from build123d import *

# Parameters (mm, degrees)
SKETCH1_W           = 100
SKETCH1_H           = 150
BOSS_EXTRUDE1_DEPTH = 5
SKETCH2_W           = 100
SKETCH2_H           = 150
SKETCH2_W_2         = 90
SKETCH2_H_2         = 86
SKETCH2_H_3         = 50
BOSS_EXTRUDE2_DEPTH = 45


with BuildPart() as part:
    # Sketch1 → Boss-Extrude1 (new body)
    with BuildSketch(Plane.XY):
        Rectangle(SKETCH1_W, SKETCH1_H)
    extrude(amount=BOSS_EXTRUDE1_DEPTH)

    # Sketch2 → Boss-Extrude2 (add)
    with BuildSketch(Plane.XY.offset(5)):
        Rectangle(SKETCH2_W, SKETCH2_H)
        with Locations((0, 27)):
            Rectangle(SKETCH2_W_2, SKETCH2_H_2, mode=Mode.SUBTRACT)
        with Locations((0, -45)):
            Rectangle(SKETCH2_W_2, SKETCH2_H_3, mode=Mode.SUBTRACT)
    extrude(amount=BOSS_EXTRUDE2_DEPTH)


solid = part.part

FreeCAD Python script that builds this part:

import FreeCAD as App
import Part
import Sketcher

V = App.Vector

doc = App.newDocument("Part")
body = doc.addObject("PartDesign::Body", "Body")

sketch1 = body.newObject("Sketcher::SketchObject", "Sketch")
sketch1.AttachmentSupport = (doc.getObject("XY_Plane"), [""])
sketch1.MapMode = "FlatFace"
sketch1.addGeometry(Part.LineSegment(V(-50, 75, 0), V(-50, -75, 0)), False)
sketch1.addGeometry(Part.LineSegment(V(-50, -75, 0), V(50, -75, 0)), False)
sketch1.addGeometry(Part.LineSegment(V(50, -75, 0), V(50, 75, 0)), False)
sketch1.addGeometry(Part.LineSegment(V(50, 75, 0), V(-50, 75, 0)), False)
sketch1.addConstraint(Sketcher.Constraint("Coincident", 0, 2, 1, 1))
sketch1.addConstraint(Sketcher.Constraint("Coincident", 1, 2, 2, 1))
sketch1.addConstraint(Sketcher.Constraint("Coincident", 2, 2, 3, 1))
sketch1.addConstraint(Sketcher.Constraint("Coincident", 3, 2, 0, 1))
sketch1.addConstraint(Sketcher.Constraint("Vertical", 0))
sketch1.addConstraint(Sketcher.Constraint("Horizontal", 1))
sketch1.addConstraint(Sketcher.Constraint("Vertical", 2))
sketch1.addConstraint(Sketcher.Constraint("Horizontal", 3))
sketch1.addConstraint(Sketcher.Constraint("Symmetric", 0, 2, 2, 2, -1, 1))
sketch1.addConstraint(Sketcher.Constraint("DistanceX", 1, 1, 1, 2, 100.0))
sketch1.addConstraint(Sketcher.Constraint("DistanceY", 0, 2, 0, 1, 150.0))
pad1 = body.newObject("PartDesign::Pad", "Pad")
pad1.Profile = sketch1
pad1.Length = 5

sketch2 = body.newObject("Sketcher::SketchObject", "Sketch001")
sketch2.AttachmentSupport = (doc.getObject("XY_Plane"), [""])
sketch2.MapMode = "FlatFace"
sketch2.AttachmentOffset = App.Placement(V(0, 0, 5), App.Rotation())
sketch2.addGeometry(Part.LineSegment(V(-50, 75, 0), V(-50, -75, 0)), False)
sketch2.addGeometry(Part.LineSegment(V(-50, -75, 0), V(50, -75, 0)), False)
sketch2.addGeometry(Part.LineSegment(V(50, -75, 0), V(50, 75, 0)), False)
sketch2.addGeometry(Part.LineSegment(V(50, 75, 0), V(-50, 75, 0)), False)
sketch2.addGeometry(Part.LineSegment(V(45, -70, 0), V(-45, -70, 0)), False)
sketch2.addGeometry(Part.LineSegment(V(-45, -70, 0), V(-45, -20, 0)), False)
sketch2.addGeometry(Part.LineSegment(V(-45, -20, 0), V(45, -20, 0)), False)
sketch2.addGeometry(Part.LineSegment(V(45, -20, 0), V(45, -70, 0)), False)
sketch2.addGeometry(Part.LineSegment(V(45, -16, 0), V(-45, -16, 0)), False)
sketch2.addGeometry(Part.LineSegment(V(-45, -16, 0), V(-45, 70, 0)), False)
sketch2.addGeometry(Part.LineSegment(V(-45, 70, 0), V(45, 70, 0)), False)
sketch2.addGeometry(Part.LineSegment(V(45, 70, 0), V(45, -16, 0)), False)
sketch2.addConstraint(Sketcher.Constraint("Coincident", 0, 2, 1, 1))
sketch2.addConstraint(Sketcher.Constraint("Coincident", 1, 2, 2, 1))
sketch2.addConstraint(Sketcher.Constraint("Coincident", 2, 2, 3, 1))
sketch2.addConstraint(Sketcher.Constraint("Coincident", 3, 2, 0, 1))
sketch2.addConstraint(Sketcher.Constraint("Coincident", 4, 2, 5, 1))
sketch2.addConstraint(Sketcher.Constraint("Coincident", 5, 2, 6, 1))
sketch2.addConstraint(Sketcher.Constraint("Coincident", 6, 2, 7, 1))
sketch2.addConstraint(Sketcher.Constraint("Coincident", 7, 2, 4, 1))
sketch2.addConstraint(Sketcher.Constraint("Coincident", 8, 2, 9, 1))
sketch2.addConstraint(Sketcher.Constraint("Coincident", 9, 2, 10, 1))
sketch2.addConstraint(Sketcher.Constraint("Coincident", 10, 2, 11, 1))
sketch2.addConstraint(Sketcher.Constraint("Coincident", 11, 2, 8, 1))
sketch2.addConstraint(Sketcher.Constraint("Vertical", 0))
sketch2.addConstraint(Sketcher.Constraint("Horizontal", 1))
sketch2.addConstraint(Sketcher.Constraint("Vertical", 2))
sketch2.addConstraint(Sketcher.Constraint("Horizontal", 3))
sketch2.addConstraint(Sketcher.Constraint("Horizontal", 4))
sketch2.addConstraint(Sketcher.Constraint("Vertical", 5))
sketch2.addConstraint(Sketcher.Constraint("Horizontal", 6))
sketch2.addConstraint(Sketcher.Constraint("Vertical", 7))
sketch2.addConstraint(Sketcher.Constraint("Horizontal", 8))
sketch2.addConstraint(Sketcher.Constraint("Vertical", 9))
sketch2.addConstraint(Sketcher.Constraint("Horizontal", 10))
sketch2.addConstraint(Sketcher.Constraint("Vertical", 11))
sketch2.addConstraint(Sketcher.Constraint("Symmetric", 0, 2, 2, 2, -1, 1))
sketch2.addConstraint(Sketcher.Constraint("Symmetric", 7, 2, 9, 2, -1, 1))
sketch2.addConstraint(Sketcher.Constraint("Vertical", 5, 2, 8, 2))
sketch2.addConstraint(Sketcher.Constraint("Vertical", 7, 2, 10, 2))
sketch2.addConstraint(Sketcher.Constraint("DistanceX", 1, 1, 1, 2, 100.0))
sketch2.addConstraint(Sketcher.Constraint("DistanceX", 4, 2, 4, 1, 90.0))
sketch2.addConstraint(Sketcher.Constraint("DistanceY", 0, 2, 0, 1, 150.0))
sketch2.addConstraint(Sketcher.Constraint("DistanceY", 5, 1, 5, 2, 50.0))
sketch2.addConstraint(Sketcher.Constraint("DistanceY", 9, 1, 9, 2, 86.0))
sketch2.addConstraint(Sketcher.Constraint("DistanceY", 4, 2, -1, 1, 70.0))
pad2 = body.newObject("PartDesign::Pad", "Pad001")
pad2.Profile = sketch2
pad2.Length = 45

doc.recompute()
